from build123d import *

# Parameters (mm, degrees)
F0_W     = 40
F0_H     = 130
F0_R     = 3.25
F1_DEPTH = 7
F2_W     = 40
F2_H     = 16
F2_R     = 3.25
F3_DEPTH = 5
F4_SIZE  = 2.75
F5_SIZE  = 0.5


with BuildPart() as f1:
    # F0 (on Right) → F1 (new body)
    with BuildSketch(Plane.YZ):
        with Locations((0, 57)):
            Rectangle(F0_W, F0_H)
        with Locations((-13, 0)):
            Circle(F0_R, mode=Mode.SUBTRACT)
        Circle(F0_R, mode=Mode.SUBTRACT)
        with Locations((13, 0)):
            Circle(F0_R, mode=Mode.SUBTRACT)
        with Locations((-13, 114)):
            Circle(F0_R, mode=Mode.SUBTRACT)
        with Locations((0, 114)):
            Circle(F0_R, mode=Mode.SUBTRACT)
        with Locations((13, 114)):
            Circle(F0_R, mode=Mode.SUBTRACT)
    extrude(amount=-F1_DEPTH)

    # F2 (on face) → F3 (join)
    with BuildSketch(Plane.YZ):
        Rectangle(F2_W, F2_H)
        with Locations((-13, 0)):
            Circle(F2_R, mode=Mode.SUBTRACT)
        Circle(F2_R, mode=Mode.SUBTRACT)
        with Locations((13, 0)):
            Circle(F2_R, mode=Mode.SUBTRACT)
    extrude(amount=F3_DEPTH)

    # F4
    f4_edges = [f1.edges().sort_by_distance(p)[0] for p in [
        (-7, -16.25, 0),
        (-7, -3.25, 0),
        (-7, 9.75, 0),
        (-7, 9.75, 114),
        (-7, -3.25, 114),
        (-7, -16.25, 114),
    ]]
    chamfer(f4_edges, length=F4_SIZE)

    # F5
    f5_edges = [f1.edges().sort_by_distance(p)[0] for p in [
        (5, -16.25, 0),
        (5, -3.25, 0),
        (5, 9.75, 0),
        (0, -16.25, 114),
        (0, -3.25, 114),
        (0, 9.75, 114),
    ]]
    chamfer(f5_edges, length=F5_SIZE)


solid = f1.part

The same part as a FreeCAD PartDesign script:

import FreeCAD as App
import Part
import Sketcher

V = App.Vector


def edges_at(feature, points):
    """Names of the edges that pass closest to the given points."""
    edges = feature.Shape.Edges
    near = lambda p: min(range(len(edges)), key=lambda i: edges[i].distToShape(Part.Vertex(*p))[0])
    return sorted({f"Edge{near(p) + 1}" for p in points})

doc = App.newDocument("Part")
body = doc.addObject("PartDesign::Body", "Body")

sketch1 = doc.addObject("Sketcher::SketchObject", "Sketch")
body.addObject(sketch1)
sketch1.AttachmentSupport = (doc.YZ_Plane, [""])
sketch1.MapMode = "FlatFace"
sketch1.addGeometry([
    Part.LineSegment(V(-20, 122, 0), V(-20, -8, 0)),
    Part.LineSegment(V(-20, -8, 0), V(20, -8, 0)),
    Part.LineSegment(V(20, -8, 0), V(20, 122, 0)),
    Part.LineSegment(V(20, 122, 0), V(-20, 122, 0)),
    Part.Circle(V(-13, 0, 0), V(0, 0, 1), 3.2),
    Part.Circle(V(0, 0, 0), V(0, 0, 1), 3.2),
    Part.Circle(V(13, 0, 0), V(0, 0, 1), 3.2),
    Part.Circle(V(-13, 114, 0), V(0, 0, 1), 3.2),
    Part.Circle(V(0, 114, 0), V(0, 0, 1), 3.2),
    Part.Circle(V(13, 114, 0), V(0, 0, 1), 3.2),
], False)
sketch1.addConstraint([
    Sketcher.Constraint("Coincident", 0, 2, 1, 1),
    Sketcher.Constraint("Coincident", 1, 2, 2, 1),
    Sketcher.Constraint("Coincident", 2, 2, 3, 1),
    Sketcher.Constraint("Coincident", 3, 2, 0, 1),
    Sketcher.Constraint("Vertical", 0),
    Sketcher.Constraint("Horizontal", 1),
    Sketcher.Constraint("Vertical", 2),
    Sketcher.Constraint("Horizontal", 3),
    Sketcher.Constraint("Coincident", 5, 3, -1, 1),
    Sketcher.Constraint("Equal", 4, 5),
    Sketcher.Constraint("Equal", 5, 6),
    Sketcher.Constraint("Equal", 6, 7),
    Sketcher.Constraint("Equal", 7, 8),
    Sketcher.Constraint("Equal", 8, 9),
    Sketcher.Constraint("Symmetric", 4, 3, 6, 3, -1, 1),
    Sketcher.Constraint("Symmetric", 7, 3, 9, 3, -2),
    Sketcher.Constraint("PointOnObject", 4, 3, -1),
    Sketcher.Constraint("PointOnObject", 8, 3, -2),
    Sketcher.Constraint("Horizontal", 7, 3, 8, 3),
    Sketcher.Constraint("Vertical", 4, 3, 7, 3),
    Sketcher.Constraint("Diameter", 4, 6.5),
    Sketcher.Constraint("DistanceX", 1, 1, 1, 2, 40.0),
    Sketcher.Constraint("DistanceY", 0, 2, 0, 1, 130.0),
    Sketcher.Constraint("DistanceX", 4, 3, -1, 1, 13.0),
    Sketcher.Constraint("DistanceY", -1, 1, 7, 3, 114.0),
    Sketcher.Constraint("DistanceX", 0, 2, -1, 1, 20.0),
    Sketcher.Constraint("DistanceY", 0, 2, -1, 1, 8.0),
])
pad1 = doc.addObject("PartDesign::Pad", "Pad")
body.addObject(pad1)
pad1.Profile = sketch1
pad1.Length = 7
pad1.Reversed = True

sketch2 = doc.addObject("Sketcher::SketchObject", "Sketch001")
body.addObject(sketch2)
sketch2.AttachmentSupport = (doc.YZ_Plane, [""])
sketch2.MapMode = "FlatFace"
sketch2.addGeometry([
    Part.LineSegment(V(-20, 8, 0), V(-20, -8, 0)),
    Part.LineSegment(V(-20, -8, 0), V(20, -8, 0)),
    Part.LineSegment(V(20, -8, 0), V(20, 8, 0)),
    Part.LineSegment(V(20, 8, 0), V(-20, 8, 0)),
    Part.Circle(V(-13, 0, 0), V(0, 0, 1), 3.2),
    Part.Circle(V(0, 0, 0), V(0, 0, 1), 3.2),
    Part.Circle(V(13, 0, 0), V(0, 0, 1), 3.2),
], False)
sketch2.addConstraint([
    Sketcher.Constraint("Coincident", 0, 2, 1, 1),
    Sketcher.Constraint("Coincident", 1, 2, 2, 1),
    Sketcher.Constraint("Coincident", 2, 2, 3, 1),
    Sketcher.Constraint("Coincident", 3, 2, 0, 1),
    Sketcher.Constraint("Vertical", 0),
    Sketcher.Constraint("Horizontal", 1),
    Sketcher.Constraint("Vertical", 2),
    Sketcher.Constraint("Horizontal", 3),
    Sketcher.Constraint("Coincident", 5, 3, -1, 1),
    Sketcher.Constraint("Equal", 4, 5),
    Sketcher.Constraint("Equal", 5, 6),
    Sketcher.Constraint("Symmetric", 4, 3, 6, 3, -1, 1),
    Sketcher.Constraint("Symmetric", 0, 2, 2, 2, -1, 1),
    Sketcher.Constraint("PointOnObject", 4, 3, -1),
    Sketcher.Constraint("Diameter", 4, 6.5),
    Sketcher.Constraint("DistanceX", 1, 1, 1, 2, 40.0),
    Sketcher.Constraint("DistanceY", 0, 2, 0, 1, 16.0),
    Sketcher.Constraint("DistanceX", 4, 3, -1, 1, 13.0),
])
pad2 = doc.addObject("PartDesign::Pad", "Pad001")
body.addObject(pad2)
pad2.Profile = sketch2
pad2.Length = 5
doc.recompute()

chamfer = doc.addObject("PartDesign::Chamfer", "Chamfer")
body.addObject(chamfer)
chamfer.Base = (pad2, edges_at(pad2, [
    (-7, -16.25, 0),
    (-7, -3.25, 0),
    (-7, 9.75, 0),
    (-7, 9.75, 114),
    (-7, -3.25, 114),
    (-7, -16.25, 114),
]))
chamfer.Size = 2.75
doc.recompute()

chamfer2 = doc.addObject("PartDesign::Chamfer", "Chamfer001")
body.addObject(chamfer2)
chamfer2.Base = (chamfer, edges_at(chamfer, [
    (5, -16.25, 0),
    (5, -3.25, 0),
    (5, 9.75, 0),
    (0, -16.25, 114),
    (0, -3.25, 114),
    (0, 9.75, 114),
]))
chamfer2.Size = 0.5

doc.recompute()
